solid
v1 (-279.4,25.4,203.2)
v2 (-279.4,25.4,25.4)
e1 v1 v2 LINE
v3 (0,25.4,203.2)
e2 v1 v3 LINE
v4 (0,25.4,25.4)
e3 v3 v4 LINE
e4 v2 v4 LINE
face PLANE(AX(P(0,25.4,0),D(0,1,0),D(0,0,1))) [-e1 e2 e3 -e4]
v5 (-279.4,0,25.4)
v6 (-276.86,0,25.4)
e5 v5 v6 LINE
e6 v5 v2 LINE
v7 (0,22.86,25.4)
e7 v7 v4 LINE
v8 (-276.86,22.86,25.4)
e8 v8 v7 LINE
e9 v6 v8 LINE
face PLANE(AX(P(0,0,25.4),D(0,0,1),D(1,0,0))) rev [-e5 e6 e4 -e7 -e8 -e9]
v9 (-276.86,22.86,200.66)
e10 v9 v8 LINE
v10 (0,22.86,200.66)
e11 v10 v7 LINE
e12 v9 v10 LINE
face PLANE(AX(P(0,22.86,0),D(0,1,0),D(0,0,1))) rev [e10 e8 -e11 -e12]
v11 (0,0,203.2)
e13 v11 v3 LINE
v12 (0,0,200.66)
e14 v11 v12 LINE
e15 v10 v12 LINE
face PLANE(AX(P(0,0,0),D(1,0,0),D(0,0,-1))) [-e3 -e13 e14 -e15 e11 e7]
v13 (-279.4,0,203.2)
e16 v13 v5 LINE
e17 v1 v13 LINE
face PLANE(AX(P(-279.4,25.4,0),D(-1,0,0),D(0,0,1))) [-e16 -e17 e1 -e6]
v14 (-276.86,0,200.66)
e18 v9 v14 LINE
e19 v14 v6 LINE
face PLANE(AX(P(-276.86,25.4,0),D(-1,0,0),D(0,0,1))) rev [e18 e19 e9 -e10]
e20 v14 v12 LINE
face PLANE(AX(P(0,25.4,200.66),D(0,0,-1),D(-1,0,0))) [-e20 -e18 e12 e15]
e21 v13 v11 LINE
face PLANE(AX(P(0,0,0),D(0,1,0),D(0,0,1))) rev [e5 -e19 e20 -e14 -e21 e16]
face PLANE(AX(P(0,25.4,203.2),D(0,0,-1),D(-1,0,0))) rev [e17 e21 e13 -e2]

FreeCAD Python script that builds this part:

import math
import FreeCAD as App
import Part
import Sketcher
from FreeCAD import Vector
Q = App.Units.Quantity


def edges_at(feature, points):
    """Names of the edges that pass closest to the given points."""
    edges = feature.Shape.Edges
    near = lambda p: min(range(len(edges)), key=lambda i: edges[i].distToShape(Part.Vertex(*p))[0])
    return sorted({f"Edge{near(p) + 1}" for p in points})


def faces_at(feature, points):
    """Names of the faces that lie closest to the given points."""
    faces = feature.Shape.Faces
    near = lambda p: min(range(len(faces)), key=lambda i: faces[i].distToShape(Part.Vertex(*p))[0])
    return sorted({f"Face{near(p) + 1}" for p in points})


def add_polygon(sketch, points):
    """Adds a closed chain of lines whose ends are joined by coincident constraints."""
    first, n = sketch.GeometryCount, len(points)
    for a, b in zip(points, points[1:] + points[:1]):
        sketch.addGeometry(Part.LineSegment(App.Vector(*a, 0), App.Vector(*b, 0)), False)
    for i in range(n):
        sketch.addConstraint(Sketcher.Constraint("Coincident", first + i, 2, first + (i + 1) % n, 1))

doc = App.newDocument("Part")
body = doc.addObject("PartDesign::Body", "Body")

# Sketch on XZ plane
sketch1 = body.newObject("Sketcher::SketchObject", "Sketch")
sketch1.AttachmentSupport = (doc.getObject("XZ_Plane"), [""])
sketch1.MapMode = "FlatFace"
add_polygon(sketch1, [(-279, -203), (-279, 203), (279, 203), (279, -203), (152, -203), (152, -13), (-152, -13), (-152, -203)])  # lines 0-7
sketch1.addConstraint(Sketcher.Constraint("Vertical", 0))
sketch1.addConstraint(Sketcher.Constraint("Horizontal", 1))
sketch1.addConstraint(Sketcher.Constraint("Vertical", 2))
sketch1.addConstraint(Sketcher.Constraint("Horizontal", 3))
sketch1.addConstraint(Sketcher.Constraint("Vertical", 4))
sketch1.addConstraint(Sketcher.Constraint("Horizontal", 5))
sketch1.addConstraint(Sketcher.Constraint("Vertical", 6))
sketch1.addConstraint(Sketcher.Constraint("Horizontal", 7))
sketch1.addConstraint(Sketcher.Constraint("Symmetric", 0, 2, 2, 2, -1, 1))
sketch1.addConstraint(Sketcher.Constraint("Symmetric", 3, 2, 6, 2, -2))
sketch1.addConstraint(Sketcher.Constraint("DistanceX", 1, 1, 1, 2, Q("22 in")))
sketch1.addConstraint(Sketcher.Constraint("DistanceX", 3, 2, 3, 1, Q("5 in")))
sketch1.addConstraint(Sketcher.Constraint("DistanceY", 0, 1, 0, 2, Q("16 in")))
sketch1.addConstraint(Sketcher.Constraint("DistanceY", 4, 1, 4, 2, Q("7.5 in")))
pad1 = body.newObject("PartDesign::Pad", "Pad")
pad1.Profile = sketch1
pad1.Length = Q("1 in")
pad1.Reversed = True
doc.recompute()

fillet = body.newObject("PartDesign::Fillet", "Fillet")
fillet.Base = (pad1, edges_at(pad1, [
    (279.4, 12.7, -203.2),
    (-279.4, 12.7, -203.2),
    (-152.4, 12.7, -203.2),
    (152.4, 12.7, -203.2),
]))
fillet.Radius = Q("0.8 in")
doc.recompute()

thickness = body.newObject("PartDesign::Thickness", "Thickness")
thickness.Base = (fillet, faces_at(fillet, [(0, 0, 0)]))
thickness.Value = Q("0.1 in")
thickness.Reversed = True
thickness.Join = "Intersection"

# Sketch on XZ plane
sketch2 = body.newObject("Sketcher::SketchObject", "Sketch001")
sketch2.AttachmentSupport = (doc.getObject("XZ_Plane"), [""])
sketch2.MapMode = "FlatFace"
sketch2.AttachmentOffset = App.Placement(Vector(0, 0, -1 * 25.4), App.Rotation())
sketch2.addGeometry(Part.Circle(Vector(-177.7, -165.1, 0), Vector(0, 0, 1), 2.5), False)
sketch2.addGeometry(Part.Circle(Vector(-167.6, -165.1, 0), Vector(0, 0, 1), 2.5), False)
sketch2.addGeometry(Part.Circle(Vector(167.6, -165.1, 0), Vector(0, 0, 1), 2.5), False)
sketch2.addGeometry(Part.Circle(Vector(177.7, -165.1, 0), Vector(0, 0, 1), 2.5), False)
sketch2.addConstraint(Sketcher.Constraint("Equal", 0, 1))
sketch2.addConstraint(Sketcher.Constraint("Equal", 1, 2))
sketch2.addConstraint(Sketcher.Constraint("Equal", 2, 3))
sketch2.addConstraint(Sketcher.Constraint("Symmetric", 1, 3, 2, 3, -2))
sketch2.addConstraint(Sketcher.Constraint("Symmetric", 0, 3, 3, 3, -2))
sketch2.addConstraint(Sketcher.Constraint("Horizontal", 0, 3, 1, 3))
sketch2.addConstraint(Sketcher.Constraint("Diameter", 0, Q("0.2 in")))
sketch2.addConstraint(Sketcher.Constraint("DistanceY", 0, 3, -1, 1, Q("6.5 in")))
sketch2.addConstraint(Sketcher.Constraint("DistanceX", 0, 3, 1, 3, Q("0.4 in")))
sketch2.addConstraint(Sketcher.Constraint("DistanceX", 0, 3, -1, 1, Q("177.72 mm")))
pocket1 = body.newObject("PartDesign::Pocket", "Pocket")
pocket1.Profile = sketch2
pocket1.Type = "ThroughAll"
pocket1.Reversed = True

# Sketch on XZ plane
sketch3 = body.newObject("Sketcher::SketchObject", "Sketch002")
sketch3.AttachmentSupport = (doc.getObject("XZ_Plane"), [""])
sketch3.MapMode = "FlatFace"
sketch3.AttachmentOffset = App.Placement(Vector(0, 0, -1 * 25.4), App.Rotation())
sketch3.addGeometry(Part.LineSegment(Vector(-279.4, -182.9, 0), Vector(-279.4, 25.4, 0)), False)
sketch3.addGeometry(Part.LineSegment(Vector(-279.4, 25.4, 0), Vector(0, 25.4, 0)), False)
sketch3.addGeometry(Part.LineSegment(Vector(0, 25.4, 0), Vector(0, 203.2, 0)), False)
sketch3.addGeometry(Part.LineSegment(Vector(0, 203.2, 0), Vector(279.4, 203.2, 0)), False)
sketch3.addGeometry(Part.LineSegment(Vector(279.4, 203.2, 0), Vector(279.4, -182.9, 0)), False)
sketch3.addGeometry(Part.ArcOfCircle(Part.Circle(Vector(259.1, -182.9, 0), Vector(0, 0, 1), 20.3), math.radians(-90), math.radians(0)), False)
sketch3.addGeometry(Part.LineSegment(Vector(259.1, -203.2, 0), Vector(172.7, -203.2, 0)), False)
sketch3.addGeometry(Part.ArcOfCircle(Part.Circle(Vector(172.7, -182.9, 0), Vector(0, 0, 1), 20.3), math.radians(180), math.radians(270)), False)
sketch3.addGeometry(Part.LineSegment(Vector(152.4, -182.9, 0), Vector(152.4, -12.7, 0)), False)
sketch3.addGeometry(Part.LineSegment(Vector(152.4, -12.7, 0), Vector(-152.4, -12.7, 0)), False)
sketch3.addGeometry(Part.LineSegment(Vector(-152.4, -12.7, 0), Vector(-152.4, -182.9, 0)), False)
sketch3.addGeometry(Part.ArcOfCircle(Part.Circle(Vector(-172.7, -182.9, 0), Vector(0, 0, 1), 20.3), math.radians(-90), math.radians(0)), False)
sketch3.addGeometry(Part.LineSegment(Vector(-172.7, -203.2, 0), Vector(-259.1, -203.2, 0)), False)
sketch3.addGeometry(Part.ArcOfCircle(Part.Circle(Vector(-259.1, -182.9, 0), Vector(0, 0, 1), 20.3), math.radians(180), math.radians(270)), False)
sketch3.addGeometry(Part.Circle(Vector(-177.7, -165.1, 0), Vector(0, 0, 1), 2.5), False)
sketch3.addGeometry(Part.Circle(Vector(-167.6, -165.1, 0), Vector(0, 0, 1), 2.5), False)
sketch3.addGeometry(Part.Circle(Vector(167.6, -165.1, 0), Vector(0, 0, 1), 2.5), False)
sketch3.addGeometry(Part.Circle(Vector(177.7, -165.1, 0), Vector(0, 0, 1), 2.5), False)
sketch3.addConstraint(Sketcher.Constraint("Coincident", 0, 2, 1, 1))
sketch3.addConstraint(Sketcher.Constraint("Coincident", 1, 2, 2, 1))
sketch3.addConstraint(Sketcher.Constraint("Coincident", 2, 2, 3, 1))
sketch3.addConstraint(Sketcher.Constraint("Coincident", 3, 2, 4, 1))
sketch3.addConstraint(Sketcher.Constraint("Tangent", 4, 2, 5, 2))
sketch3.addConstraint(Sketcher.Constraint("Tangent", 5, 1, 6, 1))
sketch3.addConstraint(Sketcher.Constraint("Tangent", 6, 2, 7, 2))
sketch3.addConstraint(Sketcher.Constraint("Tangent", 7, 1, 8, 1))
sketch3.addConstraint(Sketcher.Constraint("Coincident", 8, 2, 9, 1))
sketch3.addConstraint(Sketcher.Constraint("Coincident", 9, 2, 10, 1))
sketch3.addConstraint(Sketcher.Constraint("Tangent", 10, 2, 11, 2))
sketch3.addConstraint(Sketcher.Constraint("Tangent", 11, 1, 12, 1))
sketch3.addConstraint(Sketcher.Constraint("Tangent", 12, 2, 13, 2))
sketch3.addConstraint(Sketcher.Constraint("Tangent", 13, 1, 0, 1))
sketch3.addConstraint(Sketcher.Constraint("Vertical", 0))
sketch3.addConstraint(Sketcher.Constraint("Horizontal", 1))
sketch3.addConstraint(Sketcher.Constraint("Vertical", 2))
sketch3.addConstraint(Sketcher.Constraint("Horizontal", 3))
sketch3.addConstraint(Sketcher.Constraint("Vertical", 4))
sketch3.addConstraint(Sketcher.Constraint("Horizontal", 6))
sketch3.addConstraint(Sketcher.Constraint("Vertical", 8))
sketch3.addConstraint(Sketcher.Constraint("Horizontal", 9))
sketch3.addConstraint(Sketcher.Constraint("Vertical", 10))
sketch3.addConstraint(Sketcher.Constraint("Horizontal", 12))
sketch3.addConstraint(Sketcher.Constraint("Equal", 5, 7))
sketch3.addConstraint(Sketcher.Constraint("Equal", 7, 11))
sketch3.addConstraint(Sketcher.Constraint("Equal", 11, 13))
sketch3.addConstraint(Sketcher.Constraint("Equal", 14, 15))
sketch3.addConstraint(Sketcher.Constraint("Equal", 15, 16))
sketch3.addConstraint(Sketcher.Constraint("Equal", 16, 17))
sketch3.addConstraint(Sketcher.Constraint("Symmetric", 7, 3, 11, 3, -2))
sketch3.addConstraint(Sketcher.Constraint("Symmetric", 15, 3, 16, 3, -2))
sketch3.addConstraint(Sketcher.Constraint("Symmetric", 14, 3, 17, 3, -2))
sketch3.addConstraint(Sketcher.Constraint("PointOnObject", 1, 2, -2))
sketch3.addConstraint(Sketcher.Constraint("Horizontal", 14, 3, 15, 3))
sketch3.addConstraint(Sketcher.Constraint("Equal", 1, 3))
sketch3.addConstraint(Sketcher.Constraint("Diameter", 14, Q("0.2 in")))
sketch3.addConstraint(Sketcher.Constraint("Radius", 5, Q("0.8 in")))
sketch3.addConstraint(Sketcher.Constraint("DistanceX", 1, 1, 1, 2, Q("11 in")))
sketch3.addConstraint(Sketcher.Constraint("DistanceX", 9, 2, 9, 1, Q("12 in")))
sketch3.addConstraint(Sketcher.Constraint("DistanceY", 2, 1, 2, 2, Q("7 in")))
sketch3.addConstraint(Sketcher.Constraint("DistanceY", 0, 1, 0, 2, Q("8.2 in")))
sketch3.addConstraint(Sketcher.Constraint("DistanceY", 8, 1, 8, 2, Q("6.7 in")))
sketch3.addConstraint(Sketcher.Constraint("DistanceY", -1, 1, 0, 2, Q("1 in")))
sketch3.addConstraint(Sketcher.Constraint("DistanceY", 16, 3, 8, 2, Q("6 in")))
sketch3.addConstraint(Sketcher.Constraint("DistanceX", 14, 3, 15, 3, Q("0.4 in")))
sketch3.addConstraint(Sketcher.Constraint("DistanceX", 14, 3, -1, 1, Q("177.72 mm")))
pocket2 = body.newObject("PartDesign::Pocket", "Pocket001")
pocket2.Profile = sketch3
pocket2.Type = "ThroughAll"
pocket2.Reversed = True

doc.recompute()
